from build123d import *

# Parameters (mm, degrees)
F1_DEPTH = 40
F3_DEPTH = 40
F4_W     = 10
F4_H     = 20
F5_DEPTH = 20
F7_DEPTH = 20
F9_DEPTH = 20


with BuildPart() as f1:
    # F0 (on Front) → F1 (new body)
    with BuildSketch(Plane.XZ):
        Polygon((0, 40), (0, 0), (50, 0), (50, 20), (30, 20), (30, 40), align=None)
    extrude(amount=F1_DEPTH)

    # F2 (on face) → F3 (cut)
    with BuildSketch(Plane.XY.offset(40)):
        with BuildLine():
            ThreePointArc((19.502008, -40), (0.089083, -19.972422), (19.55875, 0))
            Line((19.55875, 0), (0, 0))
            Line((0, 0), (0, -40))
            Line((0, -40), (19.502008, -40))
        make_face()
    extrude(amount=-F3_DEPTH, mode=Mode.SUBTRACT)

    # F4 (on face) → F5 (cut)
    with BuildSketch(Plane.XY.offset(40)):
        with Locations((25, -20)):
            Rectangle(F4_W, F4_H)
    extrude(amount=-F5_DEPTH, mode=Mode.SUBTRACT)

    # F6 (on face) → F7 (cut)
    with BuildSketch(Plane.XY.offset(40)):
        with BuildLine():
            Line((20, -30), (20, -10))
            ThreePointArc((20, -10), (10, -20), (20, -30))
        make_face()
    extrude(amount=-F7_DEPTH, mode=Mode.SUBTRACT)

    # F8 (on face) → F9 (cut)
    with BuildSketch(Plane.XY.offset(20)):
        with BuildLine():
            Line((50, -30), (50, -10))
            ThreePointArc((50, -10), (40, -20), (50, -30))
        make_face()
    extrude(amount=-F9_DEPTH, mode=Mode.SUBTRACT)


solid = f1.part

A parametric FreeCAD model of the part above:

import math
import FreeCAD as App
import Part
import Sketcher
from FreeCAD import Vector
Q = App.Units.Quantity

doc = App.newDocument("Part")
body = doc.addObject("PartDesign::Body", "Body")

# Sketch on XZ plane
sketch1 = body.newObject("Sketcher::SketchObject", "Sketch")
sketch1.AttachmentSupport = (doc.getObject("XZ_Plane"), [""])
sketch1.MapMode = "FlatFace"
sketch1.addGeometry(Part.LineSegment(Vector(0, 40, 0), Vector(0, 0, 0)), False)
sketch1.addGeometry(Part.LineSegment(Vector(0, 0, 0), Vector(50, 0, 0)), False)
sketch1.addGeometry(Part.LineSegment(Vector(50, 0, 0), Vector(50, 20, 0)), False)
sketch1.addGeometry(Part.LineSegment(Vector(50, 20, 0), Vector(30, 20, 0)), False)
sketch1.addGeometry(Part.LineSegment(Vector(30, 20, 0), Vector(30, 40, 0)), False)
sketch1.addGeometry(Part.LineSegment(Vector(30, 40, 0), Vector(0, 40, 0)), False)
sketch1.addConstraint(Sketcher.Constraint("Coincident", 0, 2, 1, 1))
sketch1.addConstraint(Sketcher.Constraint("Coincident", 1, 2, 2, 1))
sketch1.addConstraint(Sketcher.Constraint("Coincident", 2, 2, 3, 1))
sketch1.addConstraint(Sketcher.Constraint("Coincident", 3, 2, 4, 1))
sketch1.addConstraint(Sketcher.Constraint("Coincident", 4, 2, 5, 1))
sketch1.addConstraint(Sketcher.Constraint("Coincident", 5, 2, 0, 1))
sketch1.addConstraint(Sketcher.Constraint("Vertical", 0))
sketch1.addConstraint(Sketcher.Constraint("Horizontal", 1))
sketch1.addConstraint(Sketcher.Constraint("Vertical", 2))
sketch1.addConstraint(Sketcher.Constraint("Horizontal", 3))
sketch1.addConstraint(Sketcher.Constraint("Vertical", 4))
sketch1.addConstraint(Sketcher.Constraint("Horizontal", 5))
sketch1.addConstraint(Sketcher.Constraint("Coincident", 0, 2, -1, 1))
sketch1.addConstraint(Sketcher.Constraint("Equal", 3, 2))
sketch1.addConstraint(Sketcher.Constraint("Equal", 2, 4))
sketch1.addConstraint(Sketcher.Constraint("DistanceX", 1, 1, 1, 2, Q("50 mm")))
sketch1.addConstraint(Sketcher.Constraint("DistanceX", 3, 2, 3, 1, Q("20 mm")))
pad1 = body.newObject("PartDesign::Pad", "Pad")
pad1.Profile = sketch1
pad1.Length = 40

# Sketch on XY plane
sketch2 = body.newObject("Sketcher::SketchObject", "Sketch001")
sketch2.AttachmentSupport = (doc.getObject("XY_Plane"), [""])
sketch2.MapMode = "FlatFace"
sketch2.AttachmentOffset = App.Placement(Vector(0, 0, 40), App.Rotation())
sketch2.addGeometry(Part.ArcOfCircle(Part.Circle(Vector(20, -20, 0), Vector(0, 0, 1), 20), math.radians(92), math.radians(268)), False)
sketch2.addGeometry(Part.LineSegment(Vector(20, 0, 0), Vector(0, 0, 0)), False)
sketch2.addGeometry(Part.LineSegment(Vector(0, 0, 0), Vector(0, -40, 0)), False)
sketch2.addGeometry(Part.LineSegment(Vector(0, -40, 0), Vector(20, -40, 0)), False)
sketch2.addConstraint(Sketcher.Constraint("Coincident", 0, 1, 1, 1))
sketch2.addConstraint(Sketcher.Constraint("Coincident", 1, 2, 2, 1))
sketch2.addConstraint(Sketcher.Constraint("Coincident", 2, 2, 3, 1))
sketch2.addConstraint(Sketcher.Constraint("Coincident", 3, 2, 0, 2))
sketch2.addConstraint(Sketcher.Constraint("Horizontal", 1))
sketch2.addConstraint(Sketcher.Constraint("Vertical", 2))
sketch2.addConstraint(Sketcher.Constraint("Horizontal", 3))
sketch2.addConstraint(Sketcher.Constraint("Coincident", 1, 2, -1, 1))
sketch2.addConstraint(Sketcher.Constraint("DistanceY", 2, 2, 2, 1, Q("40 mm")))
sketch2.addConstraint(Sketcher.Constraint("Radius", 0, Q("20.008048 mm")))
sketch2.addConstraint(Sketcher.Constraint("DistanceX", 1, 2, 1, 1, Q("19.55875 mm")))
sketch2.addConstraint(Sketcher.Constraint("DistanceX", 3, 1, 3, 2, Q("19.502008 mm")))
pocket1 = body.newObject("PartDesign::Pocket", "Pocket")
pocket1.Profile = sketch2
pocket1.Length = 40

# Sketch on XY plane
sketch3 = body.newObject("Sketcher::SketchObject", "Sketch002")
sketch3.AttachmentSupport = (doc.getObject("XY_Plane"), [""])
sketch3.MapMode = "FlatFace"
sketch3.AttachmentOffset = App.Placement(Vector(0, 0, 40), App.Rotation())
sketch3.addGeometry(Part.LineSegment(Vector(20, -10, 0), Vector(20, -30, 0)), False)
sketch3.addGeometry(Part.LineSegment(Vector(20, -30, 0), Vector(30, -30, 0)), False)
sketch3.addGeometry(Part.LineSegment(Vector(30, -30, 0), Vector(30, -10, 0)), False)
sketch3.addGeometry(Part.LineSegment(Vector(30, -10, 0), Vector(20, -10, 0)), False)
sketch3.addConstraint(Sketcher.Constraint("Coincident", 0, 2, 1, 1))
sketch3.addConstraint(Sketcher.Constraint("Coincident", 1, 2, 2, 1))
sketch3.addConstraint(Sketcher.Constraint("Coincident", 2, 2, 3, 1))
sketch3.addConstraint(Sketcher.Constraint("Coincident", 3, 2, 0, 1))
sketch3.addConstraint(Sketcher.Constraint("Vertical", 0))
sketch3.addConstraint(Sketcher.Constraint("Horizontal", 1))
sketch3.addConstraint(Sketcher.Constraint("Vertical", 2))
sketch3.addConstraint(Sketcher.Constraint("Horizontal", 3))
sketch3.addConstraint(Sketcher.Constraint("DistanceX", 1, 1, 1, 2, Q("10 mm")))
sketch3.addConstraint(Sketcher.Constraint("DistanceY", 0, 2, 0, 1, Q("20 mm")))
sketch3.addConstraint(Sketcher.Constraint("DistanceX", -1, 1, 0, 2, Q("20 mm")))
sketch3.addConstraint(Sketcher.Constraint("DistanceY", 0, 2, -1, 1, Q("30 mm")))
pocket2 = body.newObject("PartDesign::Pocket", "Pocket001")
pocket2.Profile = sketch3
pocket2.Length = 20

# Sketch on XY plane
sketch4 = body.newObject("Sketcher::SketchObject", "Sketch003")
sketch4.AttachmentSupport = (doc.getObject("XY_Plane"), [""])
sketch4.MapMode = "FlatFace"
sketch4.AttachmentOffset = App.Placement(Vector(0, 0, 40), App.Rotation())
sketch4.addGeometry(Part.LineSegment(Vector(20, -30, 0), Vector(20, -10, 0)), False)
sketch4.addGeometry(Part.ArcOfCircle(Part.Circle(Vector(20, -20, 0), Vector(0, 0, 1), 10), math.radians(90), math.radians(270)), False)
sketch4.addConstraint(Sketcher.Constraint("Coincident", 0, 1, 1, 2))
sketch4.addConstraint(Sketcher.Constraint("Coincident", 1, 1, 0, 2))
sketch4.addConstraint(Sketcher.Constraint("Vertical", 0))
sketch4.addConstraint(Sketcher.Constraint("Vertical", 1, 3, 0, 1))
sketch4.addConstraint(Sketcher.Constraint("Radius", 1, Q("10 mm")))
sketch4.addConstraint(Sketcher.Constraint("DistanceX", -1, 1, 1, 3, Q("20 mm")))
sketch4.addConstraint(Sketcher.Constraint("DistanceY", 1, 3, -1, 1, Q("20 mm")))
pocket3 = body.newObject("PartDesign::Pocket", "Pocket002")
pocket3.Profile = sketch4
pocket3.Length = 20

# Sketch on XY plane
sketch5 = body.newObject("Sketcher::SketchObject", "Sketch004")
sketch5.AttachmentSupport = (doc.getObject("XY_Plane"), [""])
sketch5.MapMode = "FlatFace"
sketch5.AttachmentOffset = App.Placement(Vector(0, 0, 20), App.Rotation())
sketch5.addGeometry(Part.LineSegment(Vector(50, -30, 0), Vector(50, -10, 0)), False)
sketch5.addGeometry(Part.ArcOfCircle(Part.Circle(Vector(50, -20, 0), Vector(0, 0, 1), 10), math.radians(90), math.radians(270)), False)
sketch5.addConstraint(Sketcher.Constraint("Coincident", 0, 1, 1, 2))
sketch5.addConstraint(Sketcher.Constraint("Coincident", 1, 1, 0, 2))
sketch5.addConstraint(Sketcher.Constraint("Vertical", 0))
sketch5.addConstraint(Sketcher.Constraint("Vertical", 1, 3, 0, 1))
sketch5.addConstraint(Sketcher.Constraint("Radius", 1, Q("10 mm")))
sketch5.addConstraint(Sketcher.Constraint("DistanceX", -1, 1, 1, 3, Q("50 mm")))
sketch5.addConstraint(Sketcher.Constraint("DistanceY", 1, 3, -1, 1, Q("20 mm")))
pocket4 = body.newObject("PartDesign::Pocket", "Pocket003")
pocket4.Profile = sketch5
pocket4.Length = 20

doc.recompute()
